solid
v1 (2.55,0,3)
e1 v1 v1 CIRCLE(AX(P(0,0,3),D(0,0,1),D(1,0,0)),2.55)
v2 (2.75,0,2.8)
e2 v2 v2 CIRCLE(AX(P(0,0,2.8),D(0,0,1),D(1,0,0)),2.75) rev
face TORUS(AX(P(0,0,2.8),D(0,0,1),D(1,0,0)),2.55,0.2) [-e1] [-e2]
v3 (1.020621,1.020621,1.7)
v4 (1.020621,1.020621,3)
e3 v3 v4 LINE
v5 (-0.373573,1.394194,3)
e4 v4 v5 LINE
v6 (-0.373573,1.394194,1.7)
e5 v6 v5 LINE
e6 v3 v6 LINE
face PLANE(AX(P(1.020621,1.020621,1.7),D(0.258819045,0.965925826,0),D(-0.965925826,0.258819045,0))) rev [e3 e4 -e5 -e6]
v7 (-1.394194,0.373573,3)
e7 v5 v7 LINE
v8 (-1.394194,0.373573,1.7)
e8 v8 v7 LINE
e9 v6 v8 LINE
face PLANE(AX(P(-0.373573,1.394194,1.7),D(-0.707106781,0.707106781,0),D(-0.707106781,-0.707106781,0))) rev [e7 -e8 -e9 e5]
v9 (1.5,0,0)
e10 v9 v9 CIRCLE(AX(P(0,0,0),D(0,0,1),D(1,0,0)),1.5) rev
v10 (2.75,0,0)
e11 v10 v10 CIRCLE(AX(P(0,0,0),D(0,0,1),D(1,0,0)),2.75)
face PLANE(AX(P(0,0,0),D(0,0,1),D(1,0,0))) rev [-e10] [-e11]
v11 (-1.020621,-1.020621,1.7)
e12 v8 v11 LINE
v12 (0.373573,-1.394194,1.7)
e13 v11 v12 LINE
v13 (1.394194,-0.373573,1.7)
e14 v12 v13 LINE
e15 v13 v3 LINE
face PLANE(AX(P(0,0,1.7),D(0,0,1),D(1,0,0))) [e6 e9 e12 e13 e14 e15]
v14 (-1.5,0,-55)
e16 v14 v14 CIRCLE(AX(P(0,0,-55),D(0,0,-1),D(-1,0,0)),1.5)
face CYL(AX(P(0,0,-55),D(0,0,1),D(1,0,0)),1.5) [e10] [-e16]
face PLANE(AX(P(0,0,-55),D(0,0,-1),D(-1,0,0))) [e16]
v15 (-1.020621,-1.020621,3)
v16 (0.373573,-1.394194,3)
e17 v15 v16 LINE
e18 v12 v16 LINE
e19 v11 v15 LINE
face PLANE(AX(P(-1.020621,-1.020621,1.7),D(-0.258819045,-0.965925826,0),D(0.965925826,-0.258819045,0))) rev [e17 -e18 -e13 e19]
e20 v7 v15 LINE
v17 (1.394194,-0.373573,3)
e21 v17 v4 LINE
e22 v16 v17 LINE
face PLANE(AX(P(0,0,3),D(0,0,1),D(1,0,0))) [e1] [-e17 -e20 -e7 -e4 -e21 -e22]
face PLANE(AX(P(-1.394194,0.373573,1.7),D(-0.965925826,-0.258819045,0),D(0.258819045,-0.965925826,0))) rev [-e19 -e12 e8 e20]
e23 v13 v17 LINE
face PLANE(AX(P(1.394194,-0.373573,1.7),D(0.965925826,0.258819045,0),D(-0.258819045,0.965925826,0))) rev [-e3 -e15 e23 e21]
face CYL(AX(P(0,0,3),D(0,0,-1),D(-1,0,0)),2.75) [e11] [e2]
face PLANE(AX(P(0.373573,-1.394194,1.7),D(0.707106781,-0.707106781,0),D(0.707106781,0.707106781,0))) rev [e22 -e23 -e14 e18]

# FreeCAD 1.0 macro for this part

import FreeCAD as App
import Part
import Sketcher
Q = App.Units.Quantity


def edges_at(feature, points):
    """Names of the edges that pass closest to the given points."""
    edges = feature.Shape.Edges
    near = lambda p: min(range(len(edges)), key=lambda i: edges[i].distToShape(Part.Vertex(*p))[0])
    return sorted({f"Edge{near(p) + 1}" for p in points})


def add_polygon(sketch, points):
    """Adds a closed chain of lines whose ends are joined by coincident constraints."""
    first, n = sketch.GeometryCount, len(points)
    for a, b in zip(points, points[1:] + points[:1]):
        sketch.addGeometry(Part.LineSegment(App.Vector(*a, 0), App.Vector(*b, 0)), False)
    for i in range(n):
        sketch.addConstraint(Sketcher.Constraint("Coincident", first + i, 2, first + (i + 1) % n, 1))

doc = App.newDocument("Part")
params = doc.addObject("Spreadsheet::Sheet", "Params")
for row, (alias, value) in enumerate([
    ("sketch1_diameter", "5.5 mm"),
    ("pad1_length", "3 mm"),
    ("pocket1_length", "1.3 mm"),
    ("sketch3_diameter", "3 mm"),
    ("pad2_length", "55 mm"),
    ("fillet_radius", "0.2 mm"),
], start=1):
    params.set(f"A{row}", alias)
    params.set(f"B{row}", "=" + value)
    params.setAlias(f"B{row}", alias)

body = doc.addObject("PartDesign::Body", "Body")

# Sketch on XY plane
sketch1 = body.newObject("Sketcher::SketchObject", "Sketch")
sketch1.AttachmentSupport = (doc.getObject("XY_Plane"), [""])
sketch1.MapMode = "FlatFace"
sketch1.addGeometry(Part.Circle(App.Vector(0, 0, 0), App.Vector(0, 0, 1), 2.75), False)
sketch1.addConstraint([
    Sketcher.Constraint("Coincident", 0, 3, -1, 1),
    Sketcher.Constraint("Diameter", 0, 5.5),
])
sketch1.setExpression("Constraints[1]", "Params.sketch1_diameter")
pad1 = body.newObject("PartDesign::Pad", "Pad")
pad1.Profile = sketch1
pad1.setExpression("Length", "Params.pad1_length")

# Sketch on XY plane
sketch2 = body.newObject("Sketcher::SketchObject", "Sketch001")
sketch2.AttachmentSupport = (doc.getObject("XY_Plane"), [""])
sketch2.MapMode = "FlatFace"
sketch2.AttachmentOffset = App.Placement(App.Vector(0, 0, 3), App.Rotation())
add_polygon(sketch2, [(-1.020621, -1.020621), (0.373573, -1.394194), (1.394194, -0.373573), (1.020621, 1.020621), (-0.373573, 1.394194), (-1.394194, 0.373573)])  # lines 0-5
sketch2.addConstraint([
    Sketcher.Constraint("Symmetric", 0, 2, 3, 2, -1, 1),
    Sketcher.Constraint("Symmetric", 1, 2, 4, 2, -1, 1),
    Sketcher.Constraint("Symmetric", 2, 2, 5, 2, -1, 1),
    Sketcher.Constraint("Equal", 0, 1),
    Sketcher.Constraint("Equal", 1, 2),
    Sketcher.Constraint("Angle", 0, Q("-15 deg")),
    Sketcher.Constraint("Angle", 1, Q("45 deg")),
    Sketcher.Constraint("Angle", 2, Q("105 deg")),
    Sketcher.Constraint("DistanceX", -1, 1, 2, 2, 1.020621),
])
pocket1 = body.newObject("PartDesign::Pocket", "Pocket")
pocket1.Profile = sketch2
pocket1.setExpression("Length", "Params.pocket1_length")

# Sketch on XY plane
sketch3 = body.newObject("Sketcher::SketchObject", "Sketch002")
sketch3.AttachmentSupport = (doc.getObject("XY_Plane"), [""])
sketch3.MapMode = "FlatFace"
sketch3.addGeometry(Part.Circle(App.Vector(0, 0, 0), App.Vector(0, 0, 1), 1.5), False)
sketch3.addConstraint([
    Sketcher.Constraint("Coincident", 0, 3, -1, 1),
    Sketcher.Constraint("Diameter", 0, 3.0),
])
sketch3.setExpression("Constraints[1]", "Params.sketch3_diameter")
pad2 = body.newObject("PartDesign::Pad", "Pad001")
pad2.Profile = sketch3
pad2.setExpression("Length", "Params.pad2_length")
pad2.Reversed = True
doc.recompute()

fillet = body.newObject("PartDesign::Fillet", "Fillet")
fillet.Base = (pad2, edges_at(pad2, [(-2.75, 0, 3)]))
fillet.setExpression("Radius", "Params.fillet_radius")

doc.recompute()
